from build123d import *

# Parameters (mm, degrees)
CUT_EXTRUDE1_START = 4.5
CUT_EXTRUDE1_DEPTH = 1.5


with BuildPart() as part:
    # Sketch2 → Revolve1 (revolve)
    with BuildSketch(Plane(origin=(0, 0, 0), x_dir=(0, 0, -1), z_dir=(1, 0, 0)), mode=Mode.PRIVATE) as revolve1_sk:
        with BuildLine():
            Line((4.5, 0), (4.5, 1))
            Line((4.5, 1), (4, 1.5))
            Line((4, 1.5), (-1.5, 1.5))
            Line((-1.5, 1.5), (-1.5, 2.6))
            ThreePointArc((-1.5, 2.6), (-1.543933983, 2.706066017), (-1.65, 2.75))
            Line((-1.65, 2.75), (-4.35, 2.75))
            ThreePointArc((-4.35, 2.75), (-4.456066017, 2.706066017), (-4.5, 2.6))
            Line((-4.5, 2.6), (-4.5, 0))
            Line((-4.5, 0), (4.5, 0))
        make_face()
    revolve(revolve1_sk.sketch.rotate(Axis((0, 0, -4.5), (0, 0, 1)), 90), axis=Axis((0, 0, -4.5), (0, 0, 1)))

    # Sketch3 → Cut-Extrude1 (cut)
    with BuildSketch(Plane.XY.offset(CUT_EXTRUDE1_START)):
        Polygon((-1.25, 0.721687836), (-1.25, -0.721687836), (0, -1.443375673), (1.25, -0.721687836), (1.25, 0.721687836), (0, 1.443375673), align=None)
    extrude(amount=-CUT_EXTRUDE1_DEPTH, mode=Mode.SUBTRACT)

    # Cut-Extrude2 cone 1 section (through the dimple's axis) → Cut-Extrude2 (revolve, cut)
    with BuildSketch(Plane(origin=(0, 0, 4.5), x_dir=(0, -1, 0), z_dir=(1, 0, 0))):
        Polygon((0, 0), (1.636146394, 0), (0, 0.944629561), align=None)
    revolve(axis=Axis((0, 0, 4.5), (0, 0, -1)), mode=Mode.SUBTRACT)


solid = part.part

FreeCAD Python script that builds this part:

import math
import FreeCAD as App
import Part
import Sketcher

V = App.Vector
Q = App.Units.Quantity

doc = App.newDocument("Part")
body = doc.addObject("PartDesign::Body", "Body")

# Sketch on YZ plane
sketch1 = body.newObject("Sketcher::SketchObject", "Sketch")
sketch1.AttachmentSupport = (doc.getObject("YZ_Plane"), [""])
sketch1.MapMode = "FlatFace"
sketch1.addGeometry([
    Part.LineSegment(V(0, -4.5, 0), V(1, -4.5, 0)),  # 0
    Part.LineSegment(V(1, -4.5, 0), V(1.5, -4, 0)),  # 1
    Part.LineSegment(V(1.5, -4, 0), V(1.5, 1.5, 0)),  # 2
    Part.LineSegment(V(1.5, 1.5, 0), V(2.6, 1.5, 0)),  # 3
    Part.ArcOfCircle(Part.Circle(V(2.6, 1.65, 0), V(0, 0, 1), 0.15), math.radians(-90), math.radians(0)),  # 4
    Part.LineSegment(V(2.75, 1.65, 0), V(2.75, 4.35, 0)),  # 5
    Part.ArcOfCircle(Part.Circle(V(2.6, 4.35, 0), V(0, 0, 1), 0.15), math.radians(0), math.radians(90)),  # 6
    Part.LineSegment(V(2.6, 4.5, 0), V(0, 4.5, 0)),  # 7
    Part.LineSegment(V(0, 4.5, 0), V(0, -4.5, 0)),  # 8
], False)
sketch1.addConstraint([
    Sketcher.Constraint("Coincident", 0, 2, 1, 1),
    Sketcher.Constraint("Coincident", 1, 2, 2, 1),
    Sketcher.Constraint("Coincident", 2, 2, 3, 1),
    Sketcher.Constraint("Tangent", 3, 2, 4, 1),
    Sketcher.Constraint("Tangent", 4, 2, 5, 1),
    Sketcher.Constraint("Tangent", 5, 2, 6, 1),
    Sketcher.Constraint("Tangent", 6, 2, 7, 1),
    Sketcher.Constraint("Coincident", 7, 2, 8, 1),
    Sketcher.Constraint("Coincident", 8, 2, 0, 1),
    Sketcher.Constraint("Horizontal", 0),
    Sketcher.Constraint("Vertical", 2),
    Sketcher.Constraint("Horizontal", 3),
    Sketcher.Constraint("Vertical", 5),
    Sketcher.Constraint("Horizontal", 7),
    Sketcher.Constraint("Vertical", 8),
    Sketcher.Constraint("Equal", 4, 6),
    Sketcher.Constraint("Symmetric", 7, 2, 8, 2, -1, 1),
    Sketcher.Constraint("DistanceX", 0, 1, 0, 2, 1.0),
    Sketcher.Constraint("DistanceY", 8, 2, 8, 1, 9.0),
    Sketcher.Constraint("Angle", 1, Q("45 deg")),
    Sketcher.Constraint("Radius", 4, 0.15),
    Sketcher.Constraint("DistanceX", 3, 1, 3, 2, 1.1),
    Sketcher.Constraint("DistanceX", 7, 2, 7, 1, 2.6),
    Sketcher.Constraint("DistanceY", 2, 1, 2, 2, 5.5),
])
revolution = body.newObject("PartDesign::Revolution", "Revolution")
revolution.Profile = sketch1
revolution.ReferenceAxis = (sketch1, ["V_Axis"])
revolution.Angle = 360

# Sketch on XY plane
sketch2 = body.newObject("Sketcher::SketchObject", "Sketch001")
sketch2.AttachmentSupport = (doc.getObject("XY_Plane"), [""])
sketch2.MapMode = "FlatFace"
sketch2.AttachmentOffset = App.Placement(V(0, 0, 4.5), App.Rotation())
sketch2.addGeometry([
    Part.LineSegment(V(-1.2, 0.7, 0), V(-1.2, -0.7, 0)),  # 0
    Part.LineSegment(V(-1.2, -0.7, 0), V(0, -1.4, 0)),  # 1
    Part.LineSegment(V(0, -1.4, 0), V(1.2, -0.7, 0)),  # 2
    Part.LineSegment(V(1.2, -0.7, 0), V(1.2, 0.7, 0)),  # 3
    Part.LineSegment(V(1.2, 0.7, 0), V(0, 1.4, 0)),  # 4
    Part.LineSegment(V(0, 1.4, 0), V(-1.2, 0.7, 0)),  # 5
], False)
sketch2.addConstraint([
    Sketcher.Constraint("Coincident", 0, 2, 1, 1),
    Sketcher.Constraint("Coincident", 1, 2, 2, 1),
    Sketcher.Constraint("Coincident", 2, 2, 3, 1),
    Sketcher.Constraint("Coincident", 3, 2, 4, 1),
    Sketcher.Constraint("Coincident", 4, 2, 5, 1),
    Sketcher.Constraint("Coincident", 5, 2, 0, 1),
    Sketcher.Constraint("Vertical", 0),
    Sketcher.Constraint("Vertical", 3),
    Sketcher.Constraint("Symmetric", 0, 2, 3, 2, -1, 1),
    Sketcher.Constraint("Symmetric", 1, 2, 4, 2, -1, 1),
    Sketcher.Constraint("PointOnObject", 1, 2, -2),
    Sketcher.Constraint("Parallel", 2, 5),
    Sketcher.Constraint("Horizontal", 0, 2, 2, 2),
    Sketcher.Constraint("Angle", 1, Q("-30 deg")),
    Sketcher.Constraint("DistanceX", 0, 2, 2, 2, 2.5),
    Sketcher.Constraint("DistanceY", 0, 2, 0, 1, 1.443376),
])
pocket1 = body.newObject("PartDesign::Pocket", "Pocket")
pocket1.Profile = sketch2
pocket1.Length = 1.5

# Sketch on YZ plane
sketch3 = body.newObject("Sketcher::SketchObject", "Sketch002")
sketch3.AttachmentSupport = (doc.getObject("YZ_Plane"), [""])
sketch3.MapMode = "FlatFace"
sketch3.addGeometry([
    Part.LineSegment(V(0, 4.5, 0), V(-1.6, 4.5, 0)),
    Part.LineSegment(V(-1.6, 4.5, 0), V(0, 3.6, 0)),
    Part.LineSegment(V(0, 3.6, 0), V(0, 4.5, 0)),
], False)
sketch3.addConstraint([
    Sketcher.Constraint("Coincident", 0, 2, 1, 1),
    Sketcher.Constraint("Coincident", 1, 2, 2, 1),
    Sketcher.Constraint("Coincident", 2, 2, 0, 1),
    Sketcher.Constraint("Horizontal", 0),
    Sketcher.Constraint("Vertical", 2),
    Sketcher.Constraint("PointOnObject", 1, 2, -2),
    Sketcher.Constraint("Angle", 1, Q("-30 deg")),
    Sketcher.Constraint("DistanceY", -1, 1, 0, 2, 4.5),
    Sketcher.Constraint("DistanceY", 2, 1, 2, 2, 0.94463),
])
groove = body.newObject("PartDesign::Groove", "Groove")
groove.Profile = sketch3
groove.ReferenceAxis = (sketch3, ["V_Axis"])
groove.Angle = 360

doc.recompute()
